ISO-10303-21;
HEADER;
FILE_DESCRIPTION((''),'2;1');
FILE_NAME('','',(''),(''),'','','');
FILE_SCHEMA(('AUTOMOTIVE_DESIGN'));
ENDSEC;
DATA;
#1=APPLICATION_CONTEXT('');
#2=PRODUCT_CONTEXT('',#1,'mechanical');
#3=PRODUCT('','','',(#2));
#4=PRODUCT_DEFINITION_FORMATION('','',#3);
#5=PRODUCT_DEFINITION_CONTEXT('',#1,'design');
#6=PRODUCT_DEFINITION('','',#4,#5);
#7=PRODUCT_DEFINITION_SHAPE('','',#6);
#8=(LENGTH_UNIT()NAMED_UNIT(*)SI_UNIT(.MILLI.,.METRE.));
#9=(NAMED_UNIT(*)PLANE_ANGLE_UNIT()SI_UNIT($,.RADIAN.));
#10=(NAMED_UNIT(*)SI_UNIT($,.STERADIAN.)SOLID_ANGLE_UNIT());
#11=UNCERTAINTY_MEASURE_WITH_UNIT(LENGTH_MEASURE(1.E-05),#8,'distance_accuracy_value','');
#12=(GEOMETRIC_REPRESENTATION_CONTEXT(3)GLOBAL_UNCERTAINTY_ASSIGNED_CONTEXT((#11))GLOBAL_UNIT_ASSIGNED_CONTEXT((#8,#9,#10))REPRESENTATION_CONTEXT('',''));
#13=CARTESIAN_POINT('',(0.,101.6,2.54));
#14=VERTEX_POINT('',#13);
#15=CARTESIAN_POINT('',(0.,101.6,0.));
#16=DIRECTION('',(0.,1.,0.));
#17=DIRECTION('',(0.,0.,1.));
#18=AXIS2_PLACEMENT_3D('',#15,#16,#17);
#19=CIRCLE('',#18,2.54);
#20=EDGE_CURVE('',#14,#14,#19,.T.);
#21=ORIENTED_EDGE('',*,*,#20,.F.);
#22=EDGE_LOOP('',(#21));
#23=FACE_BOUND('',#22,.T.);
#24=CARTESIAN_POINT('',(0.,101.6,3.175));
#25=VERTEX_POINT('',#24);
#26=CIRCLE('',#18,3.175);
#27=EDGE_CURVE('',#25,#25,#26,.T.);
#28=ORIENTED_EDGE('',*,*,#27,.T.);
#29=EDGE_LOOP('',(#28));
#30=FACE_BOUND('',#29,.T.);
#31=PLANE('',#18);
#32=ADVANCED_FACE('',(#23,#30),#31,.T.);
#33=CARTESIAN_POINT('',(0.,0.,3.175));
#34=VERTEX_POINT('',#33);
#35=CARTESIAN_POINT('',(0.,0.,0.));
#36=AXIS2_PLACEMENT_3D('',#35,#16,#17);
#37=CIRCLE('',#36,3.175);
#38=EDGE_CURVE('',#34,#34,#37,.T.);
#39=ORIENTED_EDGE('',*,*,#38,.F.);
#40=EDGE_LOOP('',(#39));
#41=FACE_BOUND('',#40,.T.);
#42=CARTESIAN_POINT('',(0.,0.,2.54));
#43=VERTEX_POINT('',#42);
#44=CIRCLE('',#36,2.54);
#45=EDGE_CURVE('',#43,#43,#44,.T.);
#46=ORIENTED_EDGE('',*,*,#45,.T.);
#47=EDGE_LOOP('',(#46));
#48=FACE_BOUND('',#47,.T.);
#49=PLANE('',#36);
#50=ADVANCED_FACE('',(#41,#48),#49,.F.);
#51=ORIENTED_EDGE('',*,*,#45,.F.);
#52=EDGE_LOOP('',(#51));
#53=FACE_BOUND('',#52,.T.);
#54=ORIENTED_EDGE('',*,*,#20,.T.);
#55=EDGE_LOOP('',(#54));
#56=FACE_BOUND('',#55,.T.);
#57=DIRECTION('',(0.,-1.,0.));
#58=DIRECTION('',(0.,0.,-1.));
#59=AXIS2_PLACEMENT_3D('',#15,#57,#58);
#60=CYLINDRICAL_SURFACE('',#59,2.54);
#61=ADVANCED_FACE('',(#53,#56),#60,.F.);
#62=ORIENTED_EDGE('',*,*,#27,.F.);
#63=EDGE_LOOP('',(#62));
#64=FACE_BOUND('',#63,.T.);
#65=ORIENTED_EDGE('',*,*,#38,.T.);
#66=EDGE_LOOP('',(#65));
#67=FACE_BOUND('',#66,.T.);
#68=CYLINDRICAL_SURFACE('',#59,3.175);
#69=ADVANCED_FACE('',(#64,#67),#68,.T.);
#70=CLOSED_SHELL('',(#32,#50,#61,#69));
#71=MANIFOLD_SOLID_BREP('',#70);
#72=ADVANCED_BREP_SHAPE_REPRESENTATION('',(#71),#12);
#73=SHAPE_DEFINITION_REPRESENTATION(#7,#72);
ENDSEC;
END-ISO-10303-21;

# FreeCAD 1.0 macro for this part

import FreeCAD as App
import Part
import Sketcher

V = App.Vector
Q = App.Units.Quantity

doc = App.newDocument("Part")
body = doc.addObject("PartDesign::Body", "Body")

# Sketch on XZ plane
sketch1 = body.newObject("Sketcher::SketchObject", "Sketch")
sketch1.AttachmentSupport = (doc.getObject("XZ_Plane"), [""])
sketch1.MapMode = "FlatFace"
sketch1.addGeometry(Part.Circle(V(0, 0, 0), V(0, 0, 1), 3.2), False)
sketch1.addGeometry(Part.Circle(V(0, 0, 0), V(0, 0, 1), 2.5), False)
sketch1.addConstraint(Sketcher.Constraint("Coincident", 0, 3, -1, 1))
sketch1.addConstraint(Sketcher.Constraint("Coincident", 1, 3, -1, 1))
sketch1.addConstraint(Sketcher.Constraint("Diameter", 1, Q("0.2 in")))
sketch1.addConstraint(Sketcher.Constraint("Diameter", 0, Q("0.25 in")))
pad1 = body.newObject("PartDesign::Pad", "Pad")
pad1.Profile = sketch1
pad1.Length = Q("4 in")
pad1.Reversed = True

doc.recompute()
